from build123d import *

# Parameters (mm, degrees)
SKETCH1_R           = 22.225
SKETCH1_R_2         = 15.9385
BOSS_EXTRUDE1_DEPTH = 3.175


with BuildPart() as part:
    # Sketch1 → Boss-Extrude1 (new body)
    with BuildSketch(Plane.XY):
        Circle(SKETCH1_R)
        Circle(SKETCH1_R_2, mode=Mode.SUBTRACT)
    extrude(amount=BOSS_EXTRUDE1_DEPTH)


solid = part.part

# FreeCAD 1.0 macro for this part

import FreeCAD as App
import Part
import Sketcher
Q = App.Units.Quantity

doc = App.newDocument("Part")
body = doc.addObject("PartDesign::Body", "Body")

# Sketch on XY plane
sketch1 = body.newObject("Sketcher::SketchObject", "Sketch")
sketch1.AttachmentSupport = (doc.getObject("XY_Plane"), [""])
sketch1.MapMode = "FlatFace"
sketch1.addGeometry(Part.Circle(App.Vector(0, 0, 0), App.Vector(0, 0, 1), 22), False)
sketch1.addGeometry(Part.Circle(App.Vector(0, 0, 0), App.Vector(0, 0, 1), 16), False)
sketch1.addConstraint(Sketcher.Constraint("Coincident", 0, 3, -1, 1))
sketch1.addConstraint(Sketcher.Constraint("Coincident", 1, 3, -1, 1))
sketch1.addConstraint(Sketcher.Constraint("Diameter", 0, Q("1.75 in")))
sketch1.addConstraint(Sketcher.Constraint("Diameter", 1, Q("1.255 in")))
pad1 = body.newObject("PartDesign::Pad", "Pad")
pad1.Profile = sketch1
pad1.Length = Q("0.125 in")

doc.recompute()
